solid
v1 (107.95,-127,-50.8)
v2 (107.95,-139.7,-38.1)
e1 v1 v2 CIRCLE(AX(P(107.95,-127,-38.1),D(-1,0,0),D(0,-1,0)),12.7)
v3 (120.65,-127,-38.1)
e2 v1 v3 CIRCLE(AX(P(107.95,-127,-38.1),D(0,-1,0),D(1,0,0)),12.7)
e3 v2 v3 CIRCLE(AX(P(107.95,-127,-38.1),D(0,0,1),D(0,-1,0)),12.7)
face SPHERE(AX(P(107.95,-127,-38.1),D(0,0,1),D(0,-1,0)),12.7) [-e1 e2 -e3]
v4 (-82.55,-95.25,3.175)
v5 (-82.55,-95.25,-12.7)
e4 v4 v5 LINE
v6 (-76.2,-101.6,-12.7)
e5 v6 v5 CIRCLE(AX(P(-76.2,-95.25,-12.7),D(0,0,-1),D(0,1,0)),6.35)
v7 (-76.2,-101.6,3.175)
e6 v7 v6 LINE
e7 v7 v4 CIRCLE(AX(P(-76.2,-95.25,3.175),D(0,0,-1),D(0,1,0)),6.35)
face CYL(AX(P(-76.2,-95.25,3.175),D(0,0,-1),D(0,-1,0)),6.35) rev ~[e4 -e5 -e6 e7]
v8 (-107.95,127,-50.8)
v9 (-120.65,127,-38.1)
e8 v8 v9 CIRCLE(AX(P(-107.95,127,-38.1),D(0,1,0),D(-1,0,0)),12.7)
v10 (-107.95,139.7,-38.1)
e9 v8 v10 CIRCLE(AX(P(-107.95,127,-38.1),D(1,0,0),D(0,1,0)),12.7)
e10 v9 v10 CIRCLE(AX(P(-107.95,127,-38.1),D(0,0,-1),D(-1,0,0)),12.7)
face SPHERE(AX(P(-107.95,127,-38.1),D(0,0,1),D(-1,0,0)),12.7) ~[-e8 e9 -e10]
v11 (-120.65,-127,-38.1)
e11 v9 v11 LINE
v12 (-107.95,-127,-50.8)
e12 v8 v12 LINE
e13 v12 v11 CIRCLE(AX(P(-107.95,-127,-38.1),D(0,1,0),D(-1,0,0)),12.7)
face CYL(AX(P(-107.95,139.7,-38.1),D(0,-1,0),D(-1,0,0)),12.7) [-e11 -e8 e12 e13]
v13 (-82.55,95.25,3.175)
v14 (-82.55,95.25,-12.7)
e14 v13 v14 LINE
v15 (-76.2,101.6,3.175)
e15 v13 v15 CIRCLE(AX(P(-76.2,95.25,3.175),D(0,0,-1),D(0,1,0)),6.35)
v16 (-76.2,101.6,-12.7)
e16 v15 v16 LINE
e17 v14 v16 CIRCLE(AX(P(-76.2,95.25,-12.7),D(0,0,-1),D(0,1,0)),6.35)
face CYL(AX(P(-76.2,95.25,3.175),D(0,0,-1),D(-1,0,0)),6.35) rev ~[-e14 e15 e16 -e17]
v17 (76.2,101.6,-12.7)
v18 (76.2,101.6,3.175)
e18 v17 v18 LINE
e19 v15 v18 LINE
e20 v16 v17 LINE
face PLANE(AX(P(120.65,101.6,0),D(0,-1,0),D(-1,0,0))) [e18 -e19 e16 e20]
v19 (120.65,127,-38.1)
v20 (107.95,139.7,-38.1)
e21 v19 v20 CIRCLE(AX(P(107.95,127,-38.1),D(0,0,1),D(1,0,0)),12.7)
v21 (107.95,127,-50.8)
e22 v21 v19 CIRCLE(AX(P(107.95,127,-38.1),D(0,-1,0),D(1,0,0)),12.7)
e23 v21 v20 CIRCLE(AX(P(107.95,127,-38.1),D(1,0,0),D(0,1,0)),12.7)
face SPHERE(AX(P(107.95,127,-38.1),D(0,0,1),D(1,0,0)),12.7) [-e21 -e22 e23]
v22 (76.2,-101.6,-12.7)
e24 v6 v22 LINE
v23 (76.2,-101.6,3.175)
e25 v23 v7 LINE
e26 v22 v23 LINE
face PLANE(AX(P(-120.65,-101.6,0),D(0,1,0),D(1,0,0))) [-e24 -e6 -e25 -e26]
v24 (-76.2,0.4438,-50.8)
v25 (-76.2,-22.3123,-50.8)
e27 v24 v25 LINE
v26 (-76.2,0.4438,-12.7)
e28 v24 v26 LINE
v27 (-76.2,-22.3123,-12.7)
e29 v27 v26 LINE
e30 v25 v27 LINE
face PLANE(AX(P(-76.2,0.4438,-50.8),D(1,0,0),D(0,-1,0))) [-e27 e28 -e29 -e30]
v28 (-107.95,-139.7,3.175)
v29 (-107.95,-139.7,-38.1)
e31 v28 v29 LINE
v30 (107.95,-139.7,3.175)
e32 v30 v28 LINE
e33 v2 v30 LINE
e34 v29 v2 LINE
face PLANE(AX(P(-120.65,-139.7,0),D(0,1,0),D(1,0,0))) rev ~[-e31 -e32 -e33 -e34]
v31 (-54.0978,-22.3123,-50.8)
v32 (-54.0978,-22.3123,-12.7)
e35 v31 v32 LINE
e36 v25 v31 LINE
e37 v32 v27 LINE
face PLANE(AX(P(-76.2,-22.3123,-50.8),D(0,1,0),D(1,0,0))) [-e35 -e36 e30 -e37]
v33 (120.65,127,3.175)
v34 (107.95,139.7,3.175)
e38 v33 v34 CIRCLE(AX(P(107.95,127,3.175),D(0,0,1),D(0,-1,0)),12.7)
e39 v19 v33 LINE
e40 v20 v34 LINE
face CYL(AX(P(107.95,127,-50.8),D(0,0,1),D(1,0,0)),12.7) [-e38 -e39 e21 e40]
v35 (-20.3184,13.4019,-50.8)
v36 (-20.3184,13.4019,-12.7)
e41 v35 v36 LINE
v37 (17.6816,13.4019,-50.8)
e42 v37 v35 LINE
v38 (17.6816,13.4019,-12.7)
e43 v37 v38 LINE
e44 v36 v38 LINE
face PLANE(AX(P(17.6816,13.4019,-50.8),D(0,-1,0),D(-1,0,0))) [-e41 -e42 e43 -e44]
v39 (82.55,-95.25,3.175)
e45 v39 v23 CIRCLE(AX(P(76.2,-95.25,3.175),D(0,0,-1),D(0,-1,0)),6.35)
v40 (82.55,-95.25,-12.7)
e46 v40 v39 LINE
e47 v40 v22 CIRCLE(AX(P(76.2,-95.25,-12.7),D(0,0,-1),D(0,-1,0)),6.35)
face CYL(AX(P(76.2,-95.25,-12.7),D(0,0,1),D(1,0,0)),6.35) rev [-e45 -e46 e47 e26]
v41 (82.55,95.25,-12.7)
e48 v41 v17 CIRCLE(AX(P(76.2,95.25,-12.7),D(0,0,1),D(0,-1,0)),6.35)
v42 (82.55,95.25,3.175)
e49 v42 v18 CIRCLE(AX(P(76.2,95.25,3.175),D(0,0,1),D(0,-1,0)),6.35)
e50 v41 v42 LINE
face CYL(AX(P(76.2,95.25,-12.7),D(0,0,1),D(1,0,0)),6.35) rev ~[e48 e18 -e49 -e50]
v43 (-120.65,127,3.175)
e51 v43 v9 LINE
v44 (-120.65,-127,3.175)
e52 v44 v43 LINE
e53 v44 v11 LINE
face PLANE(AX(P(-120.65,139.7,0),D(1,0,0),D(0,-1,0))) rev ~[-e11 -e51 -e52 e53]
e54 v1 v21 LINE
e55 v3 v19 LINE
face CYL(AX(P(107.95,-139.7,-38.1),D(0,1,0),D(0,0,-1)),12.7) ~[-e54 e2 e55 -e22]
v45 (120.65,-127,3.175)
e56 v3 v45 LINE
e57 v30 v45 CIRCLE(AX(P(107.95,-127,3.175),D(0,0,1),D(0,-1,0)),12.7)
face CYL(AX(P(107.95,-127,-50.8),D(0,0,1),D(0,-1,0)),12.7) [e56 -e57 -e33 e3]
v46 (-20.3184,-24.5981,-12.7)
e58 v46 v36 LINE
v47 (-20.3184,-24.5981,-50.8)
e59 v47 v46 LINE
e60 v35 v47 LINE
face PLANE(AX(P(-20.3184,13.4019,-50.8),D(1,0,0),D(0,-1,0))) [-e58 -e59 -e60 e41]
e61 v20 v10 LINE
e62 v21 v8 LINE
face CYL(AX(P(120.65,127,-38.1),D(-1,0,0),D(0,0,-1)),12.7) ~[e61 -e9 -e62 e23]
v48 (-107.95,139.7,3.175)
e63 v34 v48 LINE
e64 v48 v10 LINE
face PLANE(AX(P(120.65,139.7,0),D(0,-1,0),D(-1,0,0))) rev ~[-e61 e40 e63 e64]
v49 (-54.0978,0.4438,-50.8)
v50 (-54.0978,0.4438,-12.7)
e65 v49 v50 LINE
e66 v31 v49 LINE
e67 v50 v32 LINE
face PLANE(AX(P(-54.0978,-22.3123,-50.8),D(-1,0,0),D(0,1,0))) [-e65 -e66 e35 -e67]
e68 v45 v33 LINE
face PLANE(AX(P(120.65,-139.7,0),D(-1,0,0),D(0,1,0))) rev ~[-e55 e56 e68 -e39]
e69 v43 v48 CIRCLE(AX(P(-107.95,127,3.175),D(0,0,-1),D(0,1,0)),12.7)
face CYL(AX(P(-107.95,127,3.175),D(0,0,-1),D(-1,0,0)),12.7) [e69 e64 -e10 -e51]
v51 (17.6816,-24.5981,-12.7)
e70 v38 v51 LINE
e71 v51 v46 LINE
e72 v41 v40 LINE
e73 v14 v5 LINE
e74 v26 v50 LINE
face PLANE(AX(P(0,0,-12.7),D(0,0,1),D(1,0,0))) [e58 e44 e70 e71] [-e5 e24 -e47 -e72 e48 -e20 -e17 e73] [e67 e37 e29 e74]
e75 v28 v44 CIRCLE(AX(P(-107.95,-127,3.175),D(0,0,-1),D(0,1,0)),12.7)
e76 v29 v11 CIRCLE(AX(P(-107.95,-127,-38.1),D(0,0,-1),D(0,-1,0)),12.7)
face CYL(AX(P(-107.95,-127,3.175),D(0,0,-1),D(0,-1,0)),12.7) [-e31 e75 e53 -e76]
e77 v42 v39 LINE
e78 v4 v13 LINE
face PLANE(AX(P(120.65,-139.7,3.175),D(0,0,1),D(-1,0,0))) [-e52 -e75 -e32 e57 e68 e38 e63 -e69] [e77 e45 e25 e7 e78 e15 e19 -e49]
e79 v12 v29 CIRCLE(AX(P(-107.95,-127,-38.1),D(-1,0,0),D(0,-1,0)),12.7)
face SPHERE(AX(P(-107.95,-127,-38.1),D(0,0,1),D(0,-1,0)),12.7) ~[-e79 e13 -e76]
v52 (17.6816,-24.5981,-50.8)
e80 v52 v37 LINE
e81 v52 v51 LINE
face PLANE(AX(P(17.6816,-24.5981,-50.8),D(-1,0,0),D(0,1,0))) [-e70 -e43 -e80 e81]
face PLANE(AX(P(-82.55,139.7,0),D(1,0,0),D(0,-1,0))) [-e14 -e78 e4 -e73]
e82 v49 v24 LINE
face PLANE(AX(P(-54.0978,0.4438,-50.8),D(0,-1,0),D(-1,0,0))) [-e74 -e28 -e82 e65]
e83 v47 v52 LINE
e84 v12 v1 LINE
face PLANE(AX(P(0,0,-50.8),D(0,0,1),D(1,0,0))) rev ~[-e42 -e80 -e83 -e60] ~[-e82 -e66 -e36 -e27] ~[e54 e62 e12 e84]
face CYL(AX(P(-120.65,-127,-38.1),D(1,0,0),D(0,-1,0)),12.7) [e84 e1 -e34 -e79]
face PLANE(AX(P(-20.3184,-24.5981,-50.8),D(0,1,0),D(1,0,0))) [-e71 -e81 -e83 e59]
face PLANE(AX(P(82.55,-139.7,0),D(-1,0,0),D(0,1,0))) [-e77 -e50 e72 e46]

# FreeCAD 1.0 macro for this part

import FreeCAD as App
import Part
import Sketcher
from FreeCAD import Vector
Q = App.Units.Quantity


def edges_at(feature, points):
    """Names of the edges that pass closest to the given points."""
    edges = feature.Shape.Edges
    near = lambda p: min(range(len(edges)), key=lambda i: edges[i].distToShape(Part.Vertex(*p))[0])
    return sorted({f"Edge{near(p) + 1}" for p in points})


def faces_at(feature, points):
    """Names of the faces that lie closest to the given points."""
    faces = feature.Shape.Faces
    near = lambda p: min(range(len(faces)), key=lambda i: faces[i].distToShape(Part.Vertex(*p))[0])
    return sorted({f"Face{near(p) + 1}" for p in points})


def add_polygon(sketch, points):
    """Adds a closed chain of lines whose ends are joined by coincident constraints."""
    first, n = sketch.GeometryCount, len(points)
    for a, b in zip(points, points[1:] + points[:1]):
        sketch.addGeometry(Part.LineSegment(App.Vector(*a, 0), App.Vector(*b, 0)), False)
    for i in range(n):
        sketch.addConstraint(Sketcher.Constraint("Coincident", first + i, 2, first + (i + 1) % n, 1))

doc = App.newDocument("Part")
body = doc.addObject("PartDesign::Body", "Body")

sketch1 = body.newObject("Sketcher::SketchObject", "Sketch")
sketch1.AttachmentSupport = (doc.getObject("XY_Plane"), [""])
sketch1.MapMode = "FlatFace"
add_polygon(sketch1, [(-120.65, 139.7), (-120.65, -139.7), (120.65, -139.7), (120.65, 139.7)])
sketch1.addConstraint([
    Sketcher.Constraint("Vertical", 0),
    Sketcher.Constraint("Horizontal", 1),
    Sketcher.Constraint("Vertical", 2),
    Sketcher.Constraint("Horizontal", 3),
    Sketcher.Constraint("Symmetric", 0, 2, 2, 2, -1, 1),
    Sketcher.Constraint("DistanceY", 0, 2, 0, 1, Q("11 in")),
    Sketcher.Constraint("DistanceX", 1, 1, 1, 2, Q("9.5 in")),
])
pad1 = body.newObject("PartDesign::Pad", "Pad")
pad1.Profile = sketch1
pad1.Length = Q("4 in")
pad1.Midplane = True

sketch2 = body.newObject("Sketcher::SketchObject", "Sketch001")
sketch2.AttachmentSupport = (doc.getObject("XZ_Plane"), [""])
sketch2.MapMode = "FlatFace"
sketch2.AttachmentOffset = App.Placement(Vector(0, 0, 5.5 * 25.4), App.Rotation())
add_polygon(sketch2, [(120.65, 50.8), (-120.65, 50.8), (-120.65, 3.175), (120.65, 3.175)])
sketch2.addConstraint([
    Sketcher.Constraint("Horizontal", 0),
    Sketcher.Constraint("Vertical", 1),
    Sketcher.Constraint("Horizontal", 2),
    Sketcher.Constraint("Vertical", 3),
    Sketcher.Constraint("DistanceX", 0, 2, 0, 1, Q("9.5 in")),
    Sketcher.Constraint("DistanceY", -1, 1, 0, 2, Q("2 in")),
    Sketcher.Constraint("DistanceY", 1, 2, 1, 1, Q("1.875 in")),
    Sketcher.Constraint("DistanceX", 0, 2, -1, 1, Q("4.75 in")),
])
pocket1 = body.newObject("PartDesign::Pocket", "Pocket")
pocket1.Profile = sketch2
pocket1.Length = Q("11 in")
doc.recompute()

thickness = body.newObject("PartDesign::Thickness", "Thickness")
thickness.Base = (pocket1, faces_at(pocket1, [(82.846, 90.339, 3.175)]))
thickness.Value = Q("1.5 in")
thickness.Reversed = True
thickness.Join = "Intersection"
doc.recompute()

fillet = body.newObject("PartDesign::Fillet", "Fillet")
fillet.Base = (thickness, edges_at(thickness, [
    (120.65, 139.7, -23.812),
    (120.65, -139.7, -23.812),
    (-120.65, -139.7, -23.812),
    (-120.65, 139.7, -23.812),
    (0, -139.7, -50.8),
    (-120.65, 0, -50.8),
    (120.65, 0, -50.8),
    (0, 139.7, -50.8),
]))
fillet.Radius = Q("0.5 in")
doc.recompute()

fillet2 = body.newObject("PartDesign::Fillet", "Fillet001")
fillet2.Base = (fillet, edges_at(fillet, [
    (-82.55, 101.6, -4.763),
    (82.55, 101.6, -4.763),
    (82.55, -101.6, -4.763),
    (-82.55, -101.6, -4.763),
]))
fillet2.Radius = Q("0.25 in")

sketch3 = body.newObject("Sketcher::SketchObject", "Sketch002")
sketch3.AttachmentSupport = (doc.getObject("XY_Plane"), [""])
sketch3.MapMode = "FlatFace"
sketch3.AttachmentOffset = App.Placement(Vector(0, 0, -2 * 25.4), App.Rotation())
add_polygon(sketch3, [(-76.2, 0.4438), (-54.0978, 0.4438), (-54.0978, -22.3123), (-76.2, -22.3123)])
sketch3.addConstraint([
    Sketcher.Constraint("Horizontal", 0),
    Sketcher.Constraint("Vertical", 1),
    Sketcher.Constraint("Horizontal", 2),
    Sketcher.Constraint("Vertical", 3),
    Sketcher.Constraint("DistanceX", 2, 2, -1, 1, Q("3 in")),
    Sketcher.Constraint("DistanceY", 1, 2, 1, 1, Q("0.8959 in")),
    Sketcher.Constraint("DistanceX", 0, 1, 0, 2, Q("22.1022 mm")),
    Sketcher.Constraint("DistanceY", -1, 1, 0, 2, Q("0.4438 mm")),
])
pocket2 = body.newObject("PartDesign::Pocket", "Pocket001")
pocket2.Profile = sketch3
pocket2.Length = Q("3.8660906 in")
pocket2.Reversed = True

sketch4 = body.newObject("Sketcher::SketchObject", "Sketch003")
sketch4.AttachmentSupport = (doc.getObject("XY_Plane"), [""])
sketch4.MapMode = "FlatFace"
sketch4.AttachmentOffset = App.Placement(Vector(0, 0, -2 * 25.4), App.Rotation())
add_polygon(sketch4, [(17.6816, -24.5981), (-20.3184, -24.5981), (-20.3184, 13.4019), (17.6816, 13.4019)])
sketch4.addConstraint([
    Sketcher.Constraint("Horizontal", 0),
    Sketcher.Constraint("Vertical", 1),
    Sketcher.Constraint("Horizontal", 2),
    Sketcher.Constraint("Vertical", 3),
    Sketcher.Constraint("Equal", 2, 1),
    Sketcher.Constraint("DistanceX", 0, 2, 0, 1, Q("38 mm")),
    Sketcher.Constraint("DistanceX", 0, 2, -1, 1, Q("20.3184 mm")),
    Sketcher.Constraint("DistanceY", 0, 2, -1, 1, Q("24.598 mm")),
])
pocket3 = body.newObject("PartDesign::Pocket", "Pocket002")
pocket3.Profile = sketch4
pocket3.Length = 83.9753
pocket3.Reversed = True

doc.recompute()
